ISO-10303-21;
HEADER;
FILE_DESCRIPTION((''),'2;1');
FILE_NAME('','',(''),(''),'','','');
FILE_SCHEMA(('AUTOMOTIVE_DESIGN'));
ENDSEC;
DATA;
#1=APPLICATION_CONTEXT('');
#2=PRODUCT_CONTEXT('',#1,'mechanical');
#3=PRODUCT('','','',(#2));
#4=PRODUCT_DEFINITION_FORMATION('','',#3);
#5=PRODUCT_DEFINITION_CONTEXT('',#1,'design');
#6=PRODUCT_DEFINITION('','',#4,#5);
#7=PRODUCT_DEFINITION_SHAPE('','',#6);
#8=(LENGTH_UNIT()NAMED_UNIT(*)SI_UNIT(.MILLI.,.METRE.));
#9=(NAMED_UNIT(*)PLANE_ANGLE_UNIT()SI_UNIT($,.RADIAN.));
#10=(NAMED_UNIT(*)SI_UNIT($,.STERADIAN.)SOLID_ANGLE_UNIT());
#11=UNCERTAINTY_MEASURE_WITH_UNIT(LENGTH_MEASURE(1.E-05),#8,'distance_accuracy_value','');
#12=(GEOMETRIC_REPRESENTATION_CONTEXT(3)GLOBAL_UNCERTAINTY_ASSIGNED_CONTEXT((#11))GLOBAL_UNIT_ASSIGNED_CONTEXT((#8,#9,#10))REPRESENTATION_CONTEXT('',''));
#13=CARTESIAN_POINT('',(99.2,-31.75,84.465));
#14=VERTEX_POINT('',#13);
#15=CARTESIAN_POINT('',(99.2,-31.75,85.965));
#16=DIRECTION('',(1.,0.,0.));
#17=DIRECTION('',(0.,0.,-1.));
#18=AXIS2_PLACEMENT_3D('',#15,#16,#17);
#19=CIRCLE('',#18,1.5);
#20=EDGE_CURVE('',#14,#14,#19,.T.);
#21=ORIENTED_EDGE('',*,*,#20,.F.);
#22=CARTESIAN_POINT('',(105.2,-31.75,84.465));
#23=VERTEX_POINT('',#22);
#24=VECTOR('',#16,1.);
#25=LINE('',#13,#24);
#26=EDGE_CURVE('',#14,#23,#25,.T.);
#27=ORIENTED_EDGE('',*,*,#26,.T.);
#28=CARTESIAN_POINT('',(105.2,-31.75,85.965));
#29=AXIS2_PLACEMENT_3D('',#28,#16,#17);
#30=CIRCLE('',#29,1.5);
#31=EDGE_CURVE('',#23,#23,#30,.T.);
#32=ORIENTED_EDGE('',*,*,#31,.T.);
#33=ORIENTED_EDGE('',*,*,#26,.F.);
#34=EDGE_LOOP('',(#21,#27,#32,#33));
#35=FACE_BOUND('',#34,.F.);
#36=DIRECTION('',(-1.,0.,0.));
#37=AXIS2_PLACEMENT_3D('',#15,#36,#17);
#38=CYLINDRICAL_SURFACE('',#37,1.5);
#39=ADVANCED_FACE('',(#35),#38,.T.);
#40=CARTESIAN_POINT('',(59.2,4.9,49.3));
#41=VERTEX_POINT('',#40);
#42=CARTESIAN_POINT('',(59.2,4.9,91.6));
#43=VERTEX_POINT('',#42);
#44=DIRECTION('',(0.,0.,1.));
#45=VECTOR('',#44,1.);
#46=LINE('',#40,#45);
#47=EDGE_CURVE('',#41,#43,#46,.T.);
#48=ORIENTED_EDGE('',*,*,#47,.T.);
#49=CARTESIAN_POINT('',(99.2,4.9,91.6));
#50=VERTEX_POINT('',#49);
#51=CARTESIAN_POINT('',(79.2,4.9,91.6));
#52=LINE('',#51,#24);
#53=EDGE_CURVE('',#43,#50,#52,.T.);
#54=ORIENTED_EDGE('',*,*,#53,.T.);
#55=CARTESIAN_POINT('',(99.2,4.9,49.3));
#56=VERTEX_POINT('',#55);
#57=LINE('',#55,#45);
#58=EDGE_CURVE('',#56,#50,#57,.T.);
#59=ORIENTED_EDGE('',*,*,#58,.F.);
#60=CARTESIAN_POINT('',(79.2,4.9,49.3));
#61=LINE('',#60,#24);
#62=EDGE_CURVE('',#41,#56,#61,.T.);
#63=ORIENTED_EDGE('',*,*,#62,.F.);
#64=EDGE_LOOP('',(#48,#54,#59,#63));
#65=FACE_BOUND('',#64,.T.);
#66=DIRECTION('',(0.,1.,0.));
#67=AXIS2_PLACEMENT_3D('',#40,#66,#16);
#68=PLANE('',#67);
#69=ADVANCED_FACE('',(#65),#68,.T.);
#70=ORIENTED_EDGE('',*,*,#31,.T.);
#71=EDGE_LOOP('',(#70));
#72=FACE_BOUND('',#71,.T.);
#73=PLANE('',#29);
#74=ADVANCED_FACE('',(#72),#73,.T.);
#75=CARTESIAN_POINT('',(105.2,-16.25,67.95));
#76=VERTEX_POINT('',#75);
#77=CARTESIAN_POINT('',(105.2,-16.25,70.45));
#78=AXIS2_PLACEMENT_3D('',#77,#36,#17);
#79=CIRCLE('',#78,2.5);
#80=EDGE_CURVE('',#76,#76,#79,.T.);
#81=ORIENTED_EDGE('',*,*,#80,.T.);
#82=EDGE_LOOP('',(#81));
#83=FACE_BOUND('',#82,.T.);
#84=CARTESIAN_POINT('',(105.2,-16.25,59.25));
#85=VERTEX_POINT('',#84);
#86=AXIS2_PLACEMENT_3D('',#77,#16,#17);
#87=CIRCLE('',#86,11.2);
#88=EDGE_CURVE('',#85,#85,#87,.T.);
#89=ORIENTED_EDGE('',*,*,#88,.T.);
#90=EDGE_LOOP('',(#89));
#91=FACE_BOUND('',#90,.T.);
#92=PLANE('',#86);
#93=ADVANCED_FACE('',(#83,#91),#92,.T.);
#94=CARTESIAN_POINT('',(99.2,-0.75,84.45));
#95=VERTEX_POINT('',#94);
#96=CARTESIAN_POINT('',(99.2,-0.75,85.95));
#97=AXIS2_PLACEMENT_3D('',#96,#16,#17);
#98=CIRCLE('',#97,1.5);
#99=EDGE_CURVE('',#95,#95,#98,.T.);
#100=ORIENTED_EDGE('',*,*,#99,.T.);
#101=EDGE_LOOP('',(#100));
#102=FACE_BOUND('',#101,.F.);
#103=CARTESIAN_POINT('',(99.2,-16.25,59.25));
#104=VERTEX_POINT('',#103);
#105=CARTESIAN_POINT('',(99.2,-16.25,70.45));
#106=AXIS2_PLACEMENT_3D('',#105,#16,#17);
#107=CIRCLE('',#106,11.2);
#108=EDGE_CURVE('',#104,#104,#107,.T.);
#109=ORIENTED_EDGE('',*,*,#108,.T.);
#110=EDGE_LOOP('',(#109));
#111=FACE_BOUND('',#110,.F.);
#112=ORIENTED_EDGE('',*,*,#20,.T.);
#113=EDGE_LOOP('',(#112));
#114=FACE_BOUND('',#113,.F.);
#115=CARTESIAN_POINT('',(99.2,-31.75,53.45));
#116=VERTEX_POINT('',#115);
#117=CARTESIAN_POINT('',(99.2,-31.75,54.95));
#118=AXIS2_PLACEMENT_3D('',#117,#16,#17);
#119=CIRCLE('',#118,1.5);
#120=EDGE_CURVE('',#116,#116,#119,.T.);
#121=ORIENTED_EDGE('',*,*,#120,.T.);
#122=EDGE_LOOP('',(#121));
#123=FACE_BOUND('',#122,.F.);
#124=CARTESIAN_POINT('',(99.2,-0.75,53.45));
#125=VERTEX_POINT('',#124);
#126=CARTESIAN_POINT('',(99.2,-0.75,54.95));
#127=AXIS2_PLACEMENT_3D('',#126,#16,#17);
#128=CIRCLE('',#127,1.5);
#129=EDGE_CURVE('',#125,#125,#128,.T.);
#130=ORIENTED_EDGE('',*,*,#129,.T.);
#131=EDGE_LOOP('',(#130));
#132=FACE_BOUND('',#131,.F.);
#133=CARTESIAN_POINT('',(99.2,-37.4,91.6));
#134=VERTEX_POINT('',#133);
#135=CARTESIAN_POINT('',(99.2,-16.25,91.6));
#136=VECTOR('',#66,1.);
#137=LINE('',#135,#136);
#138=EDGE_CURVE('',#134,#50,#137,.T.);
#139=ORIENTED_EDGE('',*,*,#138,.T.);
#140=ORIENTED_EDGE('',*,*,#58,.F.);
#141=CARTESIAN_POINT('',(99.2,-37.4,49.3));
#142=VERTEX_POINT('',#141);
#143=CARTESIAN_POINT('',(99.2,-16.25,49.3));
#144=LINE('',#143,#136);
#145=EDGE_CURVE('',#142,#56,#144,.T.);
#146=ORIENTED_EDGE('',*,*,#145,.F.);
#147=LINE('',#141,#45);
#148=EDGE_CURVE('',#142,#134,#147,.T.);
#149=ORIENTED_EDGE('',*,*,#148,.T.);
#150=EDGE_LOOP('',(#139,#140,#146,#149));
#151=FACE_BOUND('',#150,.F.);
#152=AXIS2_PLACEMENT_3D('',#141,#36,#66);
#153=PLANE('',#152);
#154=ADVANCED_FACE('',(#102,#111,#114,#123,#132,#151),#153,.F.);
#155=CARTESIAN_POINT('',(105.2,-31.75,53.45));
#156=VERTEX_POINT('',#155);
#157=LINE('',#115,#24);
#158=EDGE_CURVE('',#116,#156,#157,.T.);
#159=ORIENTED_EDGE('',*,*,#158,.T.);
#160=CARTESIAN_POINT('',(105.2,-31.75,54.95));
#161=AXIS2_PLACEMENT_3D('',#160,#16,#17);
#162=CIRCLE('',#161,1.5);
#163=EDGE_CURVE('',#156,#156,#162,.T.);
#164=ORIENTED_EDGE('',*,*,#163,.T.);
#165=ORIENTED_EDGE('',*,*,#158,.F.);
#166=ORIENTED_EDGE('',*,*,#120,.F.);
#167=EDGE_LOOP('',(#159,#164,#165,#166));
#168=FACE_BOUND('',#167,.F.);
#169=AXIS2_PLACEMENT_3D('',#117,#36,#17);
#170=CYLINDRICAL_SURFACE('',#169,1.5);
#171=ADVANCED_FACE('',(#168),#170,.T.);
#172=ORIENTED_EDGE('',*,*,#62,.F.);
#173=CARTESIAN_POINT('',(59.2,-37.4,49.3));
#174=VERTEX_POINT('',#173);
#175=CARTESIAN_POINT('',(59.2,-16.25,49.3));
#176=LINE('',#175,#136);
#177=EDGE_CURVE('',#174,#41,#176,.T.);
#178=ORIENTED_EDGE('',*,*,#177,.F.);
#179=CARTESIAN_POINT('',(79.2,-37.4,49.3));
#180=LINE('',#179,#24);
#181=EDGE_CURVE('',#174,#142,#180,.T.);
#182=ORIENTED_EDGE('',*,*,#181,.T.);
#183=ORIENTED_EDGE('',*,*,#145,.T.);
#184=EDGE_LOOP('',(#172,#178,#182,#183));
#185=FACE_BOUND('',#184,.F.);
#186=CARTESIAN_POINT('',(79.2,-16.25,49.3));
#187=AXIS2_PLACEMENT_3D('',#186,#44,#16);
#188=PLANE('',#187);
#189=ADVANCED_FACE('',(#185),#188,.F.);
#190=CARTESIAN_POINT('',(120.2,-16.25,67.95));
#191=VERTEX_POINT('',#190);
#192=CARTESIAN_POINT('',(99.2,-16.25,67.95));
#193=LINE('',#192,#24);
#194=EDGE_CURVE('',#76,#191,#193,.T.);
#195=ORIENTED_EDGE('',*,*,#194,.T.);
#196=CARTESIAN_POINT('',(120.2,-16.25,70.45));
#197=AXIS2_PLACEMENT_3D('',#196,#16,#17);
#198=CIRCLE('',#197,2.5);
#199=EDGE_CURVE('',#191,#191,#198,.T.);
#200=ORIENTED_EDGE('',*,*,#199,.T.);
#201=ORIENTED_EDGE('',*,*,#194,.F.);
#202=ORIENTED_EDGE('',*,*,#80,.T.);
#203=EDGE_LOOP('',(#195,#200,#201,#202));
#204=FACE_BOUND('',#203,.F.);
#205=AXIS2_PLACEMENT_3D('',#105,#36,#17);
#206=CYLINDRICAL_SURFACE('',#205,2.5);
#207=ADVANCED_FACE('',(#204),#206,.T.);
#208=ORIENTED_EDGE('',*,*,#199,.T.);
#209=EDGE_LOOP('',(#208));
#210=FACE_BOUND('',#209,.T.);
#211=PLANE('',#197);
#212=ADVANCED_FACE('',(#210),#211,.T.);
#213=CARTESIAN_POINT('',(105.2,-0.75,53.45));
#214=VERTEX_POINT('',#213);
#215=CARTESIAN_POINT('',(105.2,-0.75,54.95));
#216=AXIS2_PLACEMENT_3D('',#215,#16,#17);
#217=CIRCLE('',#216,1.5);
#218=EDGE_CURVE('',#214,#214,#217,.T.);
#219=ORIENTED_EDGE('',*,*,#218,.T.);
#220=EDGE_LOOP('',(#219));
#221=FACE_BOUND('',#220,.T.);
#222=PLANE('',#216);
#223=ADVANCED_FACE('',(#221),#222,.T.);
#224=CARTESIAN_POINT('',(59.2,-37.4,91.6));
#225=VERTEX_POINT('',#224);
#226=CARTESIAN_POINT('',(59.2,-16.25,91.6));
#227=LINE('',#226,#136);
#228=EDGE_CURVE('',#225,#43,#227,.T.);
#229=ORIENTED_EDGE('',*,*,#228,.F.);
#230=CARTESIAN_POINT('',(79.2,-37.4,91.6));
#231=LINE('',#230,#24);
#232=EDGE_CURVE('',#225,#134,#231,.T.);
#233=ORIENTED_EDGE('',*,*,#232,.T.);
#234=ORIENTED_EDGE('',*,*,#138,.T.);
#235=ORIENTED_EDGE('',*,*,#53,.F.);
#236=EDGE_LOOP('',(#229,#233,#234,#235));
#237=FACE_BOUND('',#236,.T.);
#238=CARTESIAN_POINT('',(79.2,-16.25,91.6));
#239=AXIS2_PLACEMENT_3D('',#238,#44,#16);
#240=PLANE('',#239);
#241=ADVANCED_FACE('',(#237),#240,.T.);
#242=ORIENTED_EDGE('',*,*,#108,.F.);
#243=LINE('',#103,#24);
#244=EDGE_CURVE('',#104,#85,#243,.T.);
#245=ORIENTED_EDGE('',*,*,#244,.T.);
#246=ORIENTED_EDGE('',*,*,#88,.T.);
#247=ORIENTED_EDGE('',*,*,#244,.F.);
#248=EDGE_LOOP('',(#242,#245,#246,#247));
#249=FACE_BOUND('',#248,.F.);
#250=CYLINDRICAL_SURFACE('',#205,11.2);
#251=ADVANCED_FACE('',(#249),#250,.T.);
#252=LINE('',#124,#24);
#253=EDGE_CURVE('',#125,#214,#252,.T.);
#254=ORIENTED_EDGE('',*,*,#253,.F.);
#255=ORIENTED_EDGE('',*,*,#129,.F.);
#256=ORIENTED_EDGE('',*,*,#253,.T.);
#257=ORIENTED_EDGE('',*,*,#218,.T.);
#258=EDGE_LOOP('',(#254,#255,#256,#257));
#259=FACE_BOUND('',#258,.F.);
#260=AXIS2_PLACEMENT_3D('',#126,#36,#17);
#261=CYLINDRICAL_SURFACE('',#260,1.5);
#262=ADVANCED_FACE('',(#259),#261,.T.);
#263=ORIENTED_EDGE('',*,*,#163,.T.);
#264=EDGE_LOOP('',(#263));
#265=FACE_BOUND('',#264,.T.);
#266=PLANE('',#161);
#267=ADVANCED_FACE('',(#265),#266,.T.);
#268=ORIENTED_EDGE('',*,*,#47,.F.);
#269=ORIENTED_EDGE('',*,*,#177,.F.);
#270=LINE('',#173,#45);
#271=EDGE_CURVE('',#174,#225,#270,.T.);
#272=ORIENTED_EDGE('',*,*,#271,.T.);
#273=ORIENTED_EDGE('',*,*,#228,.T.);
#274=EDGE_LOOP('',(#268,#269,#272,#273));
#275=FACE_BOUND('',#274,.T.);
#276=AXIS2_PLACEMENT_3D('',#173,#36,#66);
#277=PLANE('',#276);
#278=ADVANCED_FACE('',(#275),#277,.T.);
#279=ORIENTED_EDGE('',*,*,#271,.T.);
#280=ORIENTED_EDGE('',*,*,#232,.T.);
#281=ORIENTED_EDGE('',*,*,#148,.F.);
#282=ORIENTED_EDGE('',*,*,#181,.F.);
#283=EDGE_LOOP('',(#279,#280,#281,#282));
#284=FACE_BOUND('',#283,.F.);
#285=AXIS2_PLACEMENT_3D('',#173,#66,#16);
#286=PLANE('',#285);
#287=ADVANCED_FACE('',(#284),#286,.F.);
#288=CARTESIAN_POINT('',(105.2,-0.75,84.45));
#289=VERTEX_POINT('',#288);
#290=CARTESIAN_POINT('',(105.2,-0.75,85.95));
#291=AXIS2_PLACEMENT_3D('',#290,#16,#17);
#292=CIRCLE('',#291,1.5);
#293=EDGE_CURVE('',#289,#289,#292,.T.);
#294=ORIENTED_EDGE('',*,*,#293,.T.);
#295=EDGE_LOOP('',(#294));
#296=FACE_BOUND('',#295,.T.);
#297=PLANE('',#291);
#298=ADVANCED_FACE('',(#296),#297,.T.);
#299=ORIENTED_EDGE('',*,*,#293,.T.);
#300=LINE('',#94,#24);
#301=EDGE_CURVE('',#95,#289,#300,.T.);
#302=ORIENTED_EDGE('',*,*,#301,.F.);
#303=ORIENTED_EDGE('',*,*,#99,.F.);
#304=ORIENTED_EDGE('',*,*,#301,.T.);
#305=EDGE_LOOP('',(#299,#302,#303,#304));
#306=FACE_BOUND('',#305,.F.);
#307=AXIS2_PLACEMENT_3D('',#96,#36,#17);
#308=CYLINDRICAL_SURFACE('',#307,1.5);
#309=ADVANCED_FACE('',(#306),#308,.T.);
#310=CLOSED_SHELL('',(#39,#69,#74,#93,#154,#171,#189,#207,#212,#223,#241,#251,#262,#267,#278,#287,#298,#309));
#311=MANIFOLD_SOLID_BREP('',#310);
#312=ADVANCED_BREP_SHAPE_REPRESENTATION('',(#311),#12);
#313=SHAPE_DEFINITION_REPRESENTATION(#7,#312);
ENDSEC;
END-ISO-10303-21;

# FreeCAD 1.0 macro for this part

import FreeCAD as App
import Part
import Sketcher

V = App.Vector

doc = App.newDocument("Part")
params = doc.addObject("Spreadsheet::Sheet", "Params")
for row, (alias, value) in enumerate([
    ("sketch1_diameter", "3 mm"),
    ("pad1_length", "6 mm"),
    ("sketch2_diameter", "3 mm"),
    ("pad2_length", "6 mm"),
    ("sketch3_diameter", "22.4 mm"),
    ("pad3_length", "6 mm"),
    ("sketch4_diameter", "5 mm"),
    ("pad4_length", "21 mm"),
    ("sketch5_diameter", "3 mm"),
    ("pad5_length", "6 mm"),
    ("sketch6_diameter", "3 mm"),
    ("pad6_length", "6 mm"),
    ("sketch7_width", "40 mm"),
    ("sketch7_height", "42.3 mm"),
    ("pad7_length", "42.3 mm"),
], start=1):
    params.set(f"A{row}", alias)
    params.set(f"B{row}", "=" + value)
    params.setAlias(f"B{row}", alias)

body = doc.addObject("PartDesign::Body", "Body")

sketch1 = body.newObject("Sketcher::SketchObject", "Sketch")
sketch1.AttachmentSupport = (doc.getObject("YZ_Plane"), [""])
sketch1.MapMode = "FlatFace"
sketch1.AttachmentOffset = App.Placement(V(0, 0, 40), App.Rotation())
sketch1.addGeometry(Part.Circle(V(5.7, 36.7, 0), V(0, 0, 1), 1.5), False)
sketch1.addConstraint([
    Sketcher.Constraint("Diameter", 0, 3.0),
    Sketcher.Constraint("DistanceX", -1, 1, 0, 3, 5.65),
    Sketcher.Constraint("DistanceY", -1, 1, 0, 3, 36.665),
])
sketch1.setExpression("Constraints[0]", "Params.sketch1_diameter")
pad1 = body.newObject("PartDesign::Pad", "Pad")
pad1.Profile = sketch1
pad1.setExpression("Length", "Params.pad1_length")
body2 = doc.addObject("PartDesign::Body", "Body001")

sketch2 = body2.newObject("Sketcher::SketchObject", "Sketch001")
sketch2.AttachmentSupport = (doc.getObject("YZ_Plane001"), [""])
sketch2.MapMode = "FlatFace"
sketch2.AttachmentOffset = App.Placement(V(0, 0, 40), App.Rotation())
sketch2.addGeometry(Part.Circle(V(36.6, 36.6, 0), V(0, 0, 1), 1.5), False)
sketch2.addConstraint([
    Sketcher.Constraint("Diameter", 0, 3.0),
    Sketcher.Constraint("DistanceX", -1, 1, 0, 3, 36.65),
    Sketcher.Constraint("DistanceY", -1, 1, 0, 3, 36.65),
])
sketch2.setExpression("Constraints[0]", "Params.sketch2_diameter")
pad2 = body2.newObject("PartDesign::Pad", "Pad001")
pad2.Profile = sketch2
pad2.setExpression("Length", "Params.pad2_length")
body3 = doc.addObject("PartDesign::Body", "Body002")

sketch3 = body3.newObject("Sketcher::SketchObject", "Sketch002")
sketch3.AttachmentSupport = (doc.getObject("YZ_Plane002"), [""])
sketch3.MapMode = "FlatFace"
sketch3.AttachmentOffset = App.Placement(V(0, 0, 40), App.Rotation())
sketch3.addGeometry(Part.Circle(V(21, 21, 0), V(0, 0, 1), 11), False)
sketch3.addConstraint([
    Sketcher.Constraint("Diameter", 0, 22.4),
    Sketcher.Constraint("DistanceX", -1, 1, 0, 3, 21.15),
    Sketcher.Constraint("DistanceY", -1, 1, 0, 3, 21.15),
])
sketch3.setExpression("Constraints[0]", "Params.sketch3_diameter")
pad3 = body3.newObject("PartDesign::Pad", "Pad002")
pad3.Profile = sketch3
pad3.setExpression("Length", "Params.pad3_length")
body4 = doc.addObject("PartDesign::Body", "Body003")

sketch4 = body4.newObject("Sketcher::SketchObject", "Sketch003")
sketch4.AttachmentSupport = (doc.getObject("YZ_Plane003"), [""])
sketch4.MapMode = "FlatFace"
sketch4.AttachmentOffset = App.Placement(V(0, 0, 40), App.Rotation())
sketch4.addGeometry(Part.Circle(V(21.1, 21.1, 0), V(0, 0, 1), 2.5), False)
sketch4.addConstraint([
    Sketcher.Constraint("Diameter", 0, 5.0),
    Sketcher.Constraint("DistanceX", -1, 1, 0, 3, 21.15),
    Sketcher.Constraint("DistanceY", -1, 1, 0, 3, 21.15),
])
sketch4.setExpression("Constraints[0]", "Params.sketch4_diameter")
pad4 = body4.newObject("PartDesign::Pad", "Pad003")
pad4.Profile = sketch4
pad4.setExpression("Length", "Params.pad4_length")
body5 = doc.addObject("PartDesign::Body", "Body004")

sketch5 = body5.newObject("Sketcher::SketchObject", "Sketch004")
sketch5.AttachmentSupport = (doc.getObject("YZ_Plane004"), [""])
sketch5.MapMode = "FlatFace"
sketch5.AttachmentOffset = App.Placement(V(0, 0, 40), App.Rotation())
sketch5.addGeometry(Part.Circle(V(5.7, 5.7, 0), V(0, 0, 1), 1.5), False)
sketch5.addConstraint([
    Sketcher.Constraint("Diameter", 0, 3.0),
    Sketcher.Constraint("DistanceX", -1, 1, 0, 3, 5.65),
    Sketcher.Constraint("DistanceY", -1, 1, 0, 3, 5.65),
])
sketch5.setExpression("Constraints[0]", "Params.sketch5_diameter")
pad5 = body5.newObject("PartDesign::Pad", "Pad004")
pad5.Profile = sketch5
pad5.setExpression("Length", "Params.pad5_length")
body6 = doc.addObject("PartDesign::Body", "Body005")

sketch6 = body6.newObject("Sketcher::SketchObject", "Sketch005")
sketch6.AttachmentSupport = (doc.getObject("YZ_Plane005"), [""])
sketch6.MapMode = "FlatFace"
sketch6.AttachmentOffset = App.Placement(V(0, 0, 40), App.Rotation())
sketch6.addGeometry(Part.Circle(V(36.6, 5.7, 0), V(0, 0, 1), 1.5), False)
sketch6.addConstraint([
    Sketcher.Constraint("Diameter", 0, 3.0),
    Sketcher.Constraint("DistanceX", -1, 1, 0, 3, 36.65),
    Sketcher.Constraint("DistanceY", -1, 1, 0, 3, 5.65),
])
sketch6.setExpression("Constraints[0]", "Params.sketch6_diameter")
pad6 = body6.newObject("PartDesign::Pad", "Pad005")
pad6.Profile = sketch6
pad6.setExpression("Length", "Params.pad6_length")
body7 = doc.addObject("PartDesign::Body", "Body006")

sketch7 = body7.newObject("Sketcher::SketchObject", "Sketch006")
sketch7.AttachmentSupport = (doc.getObject("XY_Plane006"), [""])
sketch7.MapMode = "FlatFace"
sketch7.addGeometry([
    Part.LineSegment(V(0, 42, 0), V(0, 0, 0)),
    Part.LineSegment(V(0, 0, 0), V(40, 0, 0)),
    Part.LineSegment(V(40, 0, 0), V(40, 42, 0)),
    Part.LineSegment(V(40, 42, 0), V(0, 42, 0)),
], False)
sketch7.addConstraint([
    Sketcher.Constraint("Coincident", 0, 2, 1, 1),
    Sketcher.Constraint("Coincident", 1, 2, 2, 1),
    Sketcher.Constraint("Coincident", 2, 2, 3, 1),
    Sketcher.Constraint("Coincident", 3, 2, 0, 1),
    Sketcher.Constraint("Vertical", 0),
    Sketcher.Constraint("Horizontal", 1),
    Sketcher.Constraint("Vertical", 2),
    Sketcher.Constraint("Horizontal", 3),
    Sketcher.Constraint("Coincident", 0, 2, -1, 1),
    Sketcher.Constraint("DistanceX", 1, 1, 1, 2, 40.0),
    Sketcher.Constraint("DistanceY", 0, 2, 0, 1, 42.3),
])
sketch7.setExpression("Constraints[9]", "Params.sketch7_width")
sketch7.setExpression("Constraints[10]", "Params.sketch7_height")
pad7 = body7.newObject("PartDesign::Pad", "Pad006")
pad7.Profile = sketch7
pad7.setExpression("Length", "Params.pad7_length")
doc.recompute()

boolean = body7.newObject("PartDesign::Boolean", "Boolean")
boolean.Type = "Fuse"
boolean.addObjects([body])
doc.recompute()

boolean2 = body7.newObject("PartDesign::Boolean", "Boolean001")
boolean2.Type = "Fuse"
boolean2.addObjects([body2])
doc.recompute()

boolean3 = body7.newObject("PartDesign::Boolean", "Boolean002")
boolean3.Type = "Fuse"
boolean3.addObjects([body3])
doc.recompute()

boolean4 = body7.newObject("PartDesign::Boolean", "Boolean003")
boolean4.Type = "Fuse"
boolean4.addObjects([body4])
doc.recompute()

boolean5 = body7.newObject("PartDesign::Boolean", "Boolean004")
boolean5.Type = "Fuse"
boolean5.addObjects([body5])
doc.recompute()

boolean6 = body7.newObject("PartDesign::Boolean", "Boolean005")
boolean6.Type = "Fuse"
boolean6.addObjects([body6])
body8 = doc.addObject("PartDesign::Body", "Body007")
doc.recompute()

body7.Placement = App.Placement(V(59.2, -37.4, 49.3), App.Rotation(V(0, 0, 1), 0))
boolean7 = body8.newObject("PartDesign::Boolean", "Boolean006")
boolean7.Type = "Fuse"
boolean7.addObjects([body7])

doc.recompute()
